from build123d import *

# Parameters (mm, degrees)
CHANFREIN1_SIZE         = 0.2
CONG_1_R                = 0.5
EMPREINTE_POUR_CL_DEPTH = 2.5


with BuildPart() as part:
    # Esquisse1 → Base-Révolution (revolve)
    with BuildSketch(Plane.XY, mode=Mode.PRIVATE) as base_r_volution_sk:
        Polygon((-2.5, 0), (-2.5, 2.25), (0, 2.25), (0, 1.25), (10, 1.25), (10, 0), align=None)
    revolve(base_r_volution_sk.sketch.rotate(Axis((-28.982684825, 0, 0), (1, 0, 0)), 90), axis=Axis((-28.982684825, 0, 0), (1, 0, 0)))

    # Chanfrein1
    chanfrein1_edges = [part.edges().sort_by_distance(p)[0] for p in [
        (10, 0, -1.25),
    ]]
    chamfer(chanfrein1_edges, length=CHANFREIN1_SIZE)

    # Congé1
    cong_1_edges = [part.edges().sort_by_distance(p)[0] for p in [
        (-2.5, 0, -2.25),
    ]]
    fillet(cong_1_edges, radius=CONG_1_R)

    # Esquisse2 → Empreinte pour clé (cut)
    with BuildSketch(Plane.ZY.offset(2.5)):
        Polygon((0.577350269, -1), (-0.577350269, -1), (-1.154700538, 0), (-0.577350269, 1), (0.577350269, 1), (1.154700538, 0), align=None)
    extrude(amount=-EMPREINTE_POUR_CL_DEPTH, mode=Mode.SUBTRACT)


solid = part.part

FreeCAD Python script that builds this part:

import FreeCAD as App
import Part
import Sketcher
from FreeCAD import Vector
Q = App.Units.Quantity


def edges_at(feature, points):
    """Names of the edges that pass closest to the given points."""
    edges = feature.Shape.Edges
    near = lambda p: min(range(len(edges)), key=lambda i: edges[i].distToShape(Part.Vertex(*p))[0])
    return sorted({f"Edge{near(p) + 1}" for p in points})

doc = App.newDocument("Part")
params = doc.addObject("Spreadsheet::Sheet", "Params")
for row, (alias, value) in enumerate([
    ("sketch1_width", "10 mm"),
    ("sketch1_height", "1 mm"),
    ("sketch1_width2", "12.5 mm"),
    ("sketch1_height2", "2.25 mm"),
    ("revolution_angle", "360 deg"),
    ("chamfer_size", "0.2 mm"),
    ("fillet_radius", "0.5 mm"),
    ("pocket1_length", "2.5 mm"),
], start=1):
    params.set(f"A{row}", alias)
    params.set(f"B{row}", "=" + value)
    params.setAlias(f"B{row}", alias)

body = doc.addObject("PartDesign::Body", "Body")

sketch1 = body.newObject("Sketcher::SketchObject", "Sketch")
sketch1.AttachmentSupport = (doc.getObject("XY_Plane"), [""])
sketch1.MapMode = "FlatFace"
sketch1.addGeometry([
    Part.LineSegment(Vector(-2.5, 2.2, 0), Vector(-2.5, 0, 0)),
    Part.LineSegment(Vector(-2.5, 0, 0), Vector(10, 0, 0)),
    Part.LineSegment(Vector(10, 0, 0), Vector(10, 1.2, 0)),
    Part.LineSegment(Vector(10, 1.2, 0), Vector(0, 1.2, 0)),
    Part.LineSegment(Vector(0, 1.2, 0), Vector(0, 2.2, 0)),
    Part.LineSegment(Vector(0, 2.2, 0), Vector(-2.5, 2.2, 0)),
], False)
sketch1.addConstraint([
    Sketcher.Constraint("Coincident", 0, 2, 1, 1),
    Sketcher.Constraint("Coincident", 1, 2, 2, 1),
    Sketcher.Constraint("Coincident", 2, 2, 3, 1),
    Sketcher.Constraint("Coincident", 3, 2, 4, 1),
    Sketcher.Constraint("Coincident", 4, 2, 5, 1),
    Sketcher.Constraint("Coincident", 5, 2, 0, 1),
    Sketcher.Constraint("Vertical", 0),
    Sketcher.Constraint("Horizontal", 1),
    Sketcher.Constraint("Vertical", 2),
    Sketcher.Constraint("Horizontal", 3),
    Sketcher.Constraint("Vertical", 4),
    Sketcher.Constraint("Horizontal", 5),
    Sketcher.Constraint("PointOnObject", 0, 2, -1),
    Sketcher.Constraint("PointOnObject", 3, 2, -2),
    Sketcher.Constraint("DistanceX", 3, 2, 3, 1, Q("10 mm")),
    Sketcher.Constraint("DistanceY", 4, 1, 4, 2, Q("1 mm")),
    Sketcher.Constraint("DistanceX", 1, 1, 1, 2, Q("12.5 mm")),
    Sketcher.Constraint("DistanceY", 0, 2, 0, 1, Q("2.25 mm")),
])
sketch1.setExpression("Constraints[14]", "Params.sketch1_width")
sketch1.setExpression("Constraints[15]", "Params.sketch1_height")
sketch1.setExpression("Constraints[16]", "Params.sketch1_width2")
sketch1.setExpression("Constraints[17]", "Params.sketch1_height2")
revolution = body.newObject("PartDesign::Revolution", "Revolution")
revolution.Profile = sketch1
revolution.ReferenceAxis = (sketch1, ["H_Axis"])
revolution.setExpression("Angle", "Params.revolution_angle")
doc.recompute()

chamfer = body.newObject("PartDesign::Chamfer", "Chamfer")
chamfer.Base = (revolution, edges_at(revolution, [(10, 0, -1.25)]))
chamfer.setExpression("Size", "Params.chamfer_size")
doc.recompute()

fillet = body.newObject("PartDesign::Fillet", "Fillet")
fillet.Base = (chamfer, edges_at(chamfer, [(-2.5, 0, -2.25)]))
fillet.setExpression("Radius", "Params.fillet_radius")

sketch2 = body.newObject("Sketcher::SketchObject", "Sketch001")
sketch2.AttachmentSupport = (doc.getObject("YZ_Plane"), [""])
sketch2.MapMode = "FlatFace"
sketch2.AttachmentOffset = App.Placement(Vector(0, 0, -2.5), App.Rotation())
sketch2.addGeometry([
    Part.LineSegment(Vector(-1, -0.6, 0), Vector(-1, 0.6, 0)),
    Part.LineSegment(Vector(-1, 0.6, 0), Vector(0, 1.2, 0)),
    Part.LineSegment(Vector(0, 1.2, 0), Vector(1, 0.6, 0)),
    Part.LineSegment(Vector(1, 0.6, 0), Vector(1, -0.6, 0)),
    Part.LineSegment(Vector(1, -0.6, 0), Vector(0, -1.2, 0)),
    Part.LineSegment(Vector(0, -1.2, 0), Vector(-1, -0.6, 0)),
], False)
sketch2.addConstraint([
    Sketcher.Constraint("Coincident", 0, 2, 1, 1),
    Sketcher.Constraint("Coincident", 1, 2, 2, 1),
    Sketcher.Constraint("Coincident", 2, 2, 3, 1),
    Sketcher.Constraint("Coincident", 3, 2, 4, 1),
    Sketcher.Constraint("Coincident", 4, 2, 5, 1),
    Sketcher.Constraint("Coincident", 5, 2, 0, 1),
    Sketcher.Constraint("Vertical", 0),
    Sketcher.Constraint("Vertical", 3),
    Sketcher.Constraint("Symmetric", 0, 2, 3, 2, -1, 1),
    Sketcher.Constraint("Symmetric", 1, 2, 4, 2, -1, 1),
    Sketcher.Constraint("PointOnObject", 1, 2, -2),
    Sketcher.Constraint("Parallel", 2, 5),
    Sketcher.Constraint("Horizontal", 0, 2, 2, 2),
    Sketcher.Constraint("Angle", 1, Q("30 deg")),
    Sketcher.Constraint("DistanceX", 0, 2, -1, 1, Q("1 mm")),
    Sketcher.Constraint("DistanceY", 0, 1, 0, 2, Q("1.154701 mm")),
])
pocket1 = body.newObject("PartDesign::Pocket", "Pocket")
pocket1.Profile = sketch2
pocket1.setExpression("Length", "Params.pocket1_length")
pocket1.Reversed = True

doc.recompute()
